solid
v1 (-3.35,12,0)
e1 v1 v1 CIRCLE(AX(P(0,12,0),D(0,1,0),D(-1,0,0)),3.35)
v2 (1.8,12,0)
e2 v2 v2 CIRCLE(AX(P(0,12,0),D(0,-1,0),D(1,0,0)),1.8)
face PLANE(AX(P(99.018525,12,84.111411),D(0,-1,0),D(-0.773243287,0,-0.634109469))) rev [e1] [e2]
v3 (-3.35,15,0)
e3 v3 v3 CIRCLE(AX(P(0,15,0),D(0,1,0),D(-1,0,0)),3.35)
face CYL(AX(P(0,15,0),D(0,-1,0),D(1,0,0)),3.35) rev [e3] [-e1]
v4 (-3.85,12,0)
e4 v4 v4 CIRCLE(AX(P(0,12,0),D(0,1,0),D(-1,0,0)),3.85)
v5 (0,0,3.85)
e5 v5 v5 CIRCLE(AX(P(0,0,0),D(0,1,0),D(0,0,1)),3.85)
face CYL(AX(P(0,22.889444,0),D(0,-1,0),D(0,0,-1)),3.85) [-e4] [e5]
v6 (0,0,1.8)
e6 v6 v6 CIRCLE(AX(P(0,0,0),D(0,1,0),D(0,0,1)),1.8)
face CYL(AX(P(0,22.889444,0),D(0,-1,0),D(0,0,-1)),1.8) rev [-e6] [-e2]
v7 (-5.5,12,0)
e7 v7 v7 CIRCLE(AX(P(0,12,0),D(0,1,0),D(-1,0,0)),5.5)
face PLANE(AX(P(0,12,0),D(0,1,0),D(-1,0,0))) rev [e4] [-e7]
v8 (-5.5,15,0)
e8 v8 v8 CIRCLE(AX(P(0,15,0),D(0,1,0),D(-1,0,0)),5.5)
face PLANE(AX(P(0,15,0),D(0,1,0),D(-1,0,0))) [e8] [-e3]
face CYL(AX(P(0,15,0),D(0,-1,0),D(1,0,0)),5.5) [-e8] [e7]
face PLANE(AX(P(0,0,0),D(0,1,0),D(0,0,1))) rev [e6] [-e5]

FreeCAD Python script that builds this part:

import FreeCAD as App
import Part
import Sketcher
from FreeCAD import Vector

doc = App.newDocument("Part")
body = doc.addObject("PartDesign::Body", "Body")

# Sketch on XZ plane
sketch1 = doc.addObject("Sketcher::SketchObject", "Sketch")
body.addObject(sketch1)
sketch1.AttachmentSupport = (doc.XZ_Plane, [""])
sketch1.MapMode = "FlatFace"
sketch1.addGeometry([
    Part.Circle(Vector(0, 0, 0), Vector(0, 0, 1), 3.85),
    Part.Circle(Vector(0, 0, 0), Vector(0, 0, 1), 1.8),
], False)
sketch1.addConstraint([
    Sketcher.Constraint("Coincident", 0, 3, -1, 1),
    Sketcher.Constraint("Coincident", 1, 3, -1, 1),
    Sketcher.Constraint("Diameter", 0, 7.7),
    Sketcher.Constraint("Diameter", 1, 3.6),
])
pad1 = doc.addObject("PartDesign::Pad", "Pad")
body.addObject(pad1)
pad1.Profile = sketch1
pad1.Length = 12
pad1.Reversed = True

# Sketch on XZ plane
sketch2 = doc.addObject("Sketcher::SketchObject", "Sketch001")
body.addObject(sketch2)
sketch2.AttachmentSupport = (doc.XZ_Plane, [""])
sketch2.MapMode = "FlatFace"
sketch2.AttachmentOffset = App.Placement(Vector(0, 0, -12), App.Rotation())
sketch2.addGeometry([
    Part.Circle(Vector(0, 0, 0), Vector(0, 0, 1), 5.5),
    Part.Circle(Vector(0, 0, 0), Vector(0, 0, 1), 3.35),
], False)
sketch2.addConstraint([
    Sketcher.Constraint("Coincident", 0, 3, -1, 1),
    Sketcher.Constraint("Coincident", 1, 3, -1, 1),
    Sketcher.Constraint("Diameter", 0, 11.0),
    Sketcher.Constraint("Diameter", 1, 6.7),
])
pad2 = doc.addObject("PartDesign::Pad", "Pad001")
body.addObject(pad2)
pad2.Profile = sketch2
pad2.Length = 3
pad2.Reversed = True

doc.recompute()
